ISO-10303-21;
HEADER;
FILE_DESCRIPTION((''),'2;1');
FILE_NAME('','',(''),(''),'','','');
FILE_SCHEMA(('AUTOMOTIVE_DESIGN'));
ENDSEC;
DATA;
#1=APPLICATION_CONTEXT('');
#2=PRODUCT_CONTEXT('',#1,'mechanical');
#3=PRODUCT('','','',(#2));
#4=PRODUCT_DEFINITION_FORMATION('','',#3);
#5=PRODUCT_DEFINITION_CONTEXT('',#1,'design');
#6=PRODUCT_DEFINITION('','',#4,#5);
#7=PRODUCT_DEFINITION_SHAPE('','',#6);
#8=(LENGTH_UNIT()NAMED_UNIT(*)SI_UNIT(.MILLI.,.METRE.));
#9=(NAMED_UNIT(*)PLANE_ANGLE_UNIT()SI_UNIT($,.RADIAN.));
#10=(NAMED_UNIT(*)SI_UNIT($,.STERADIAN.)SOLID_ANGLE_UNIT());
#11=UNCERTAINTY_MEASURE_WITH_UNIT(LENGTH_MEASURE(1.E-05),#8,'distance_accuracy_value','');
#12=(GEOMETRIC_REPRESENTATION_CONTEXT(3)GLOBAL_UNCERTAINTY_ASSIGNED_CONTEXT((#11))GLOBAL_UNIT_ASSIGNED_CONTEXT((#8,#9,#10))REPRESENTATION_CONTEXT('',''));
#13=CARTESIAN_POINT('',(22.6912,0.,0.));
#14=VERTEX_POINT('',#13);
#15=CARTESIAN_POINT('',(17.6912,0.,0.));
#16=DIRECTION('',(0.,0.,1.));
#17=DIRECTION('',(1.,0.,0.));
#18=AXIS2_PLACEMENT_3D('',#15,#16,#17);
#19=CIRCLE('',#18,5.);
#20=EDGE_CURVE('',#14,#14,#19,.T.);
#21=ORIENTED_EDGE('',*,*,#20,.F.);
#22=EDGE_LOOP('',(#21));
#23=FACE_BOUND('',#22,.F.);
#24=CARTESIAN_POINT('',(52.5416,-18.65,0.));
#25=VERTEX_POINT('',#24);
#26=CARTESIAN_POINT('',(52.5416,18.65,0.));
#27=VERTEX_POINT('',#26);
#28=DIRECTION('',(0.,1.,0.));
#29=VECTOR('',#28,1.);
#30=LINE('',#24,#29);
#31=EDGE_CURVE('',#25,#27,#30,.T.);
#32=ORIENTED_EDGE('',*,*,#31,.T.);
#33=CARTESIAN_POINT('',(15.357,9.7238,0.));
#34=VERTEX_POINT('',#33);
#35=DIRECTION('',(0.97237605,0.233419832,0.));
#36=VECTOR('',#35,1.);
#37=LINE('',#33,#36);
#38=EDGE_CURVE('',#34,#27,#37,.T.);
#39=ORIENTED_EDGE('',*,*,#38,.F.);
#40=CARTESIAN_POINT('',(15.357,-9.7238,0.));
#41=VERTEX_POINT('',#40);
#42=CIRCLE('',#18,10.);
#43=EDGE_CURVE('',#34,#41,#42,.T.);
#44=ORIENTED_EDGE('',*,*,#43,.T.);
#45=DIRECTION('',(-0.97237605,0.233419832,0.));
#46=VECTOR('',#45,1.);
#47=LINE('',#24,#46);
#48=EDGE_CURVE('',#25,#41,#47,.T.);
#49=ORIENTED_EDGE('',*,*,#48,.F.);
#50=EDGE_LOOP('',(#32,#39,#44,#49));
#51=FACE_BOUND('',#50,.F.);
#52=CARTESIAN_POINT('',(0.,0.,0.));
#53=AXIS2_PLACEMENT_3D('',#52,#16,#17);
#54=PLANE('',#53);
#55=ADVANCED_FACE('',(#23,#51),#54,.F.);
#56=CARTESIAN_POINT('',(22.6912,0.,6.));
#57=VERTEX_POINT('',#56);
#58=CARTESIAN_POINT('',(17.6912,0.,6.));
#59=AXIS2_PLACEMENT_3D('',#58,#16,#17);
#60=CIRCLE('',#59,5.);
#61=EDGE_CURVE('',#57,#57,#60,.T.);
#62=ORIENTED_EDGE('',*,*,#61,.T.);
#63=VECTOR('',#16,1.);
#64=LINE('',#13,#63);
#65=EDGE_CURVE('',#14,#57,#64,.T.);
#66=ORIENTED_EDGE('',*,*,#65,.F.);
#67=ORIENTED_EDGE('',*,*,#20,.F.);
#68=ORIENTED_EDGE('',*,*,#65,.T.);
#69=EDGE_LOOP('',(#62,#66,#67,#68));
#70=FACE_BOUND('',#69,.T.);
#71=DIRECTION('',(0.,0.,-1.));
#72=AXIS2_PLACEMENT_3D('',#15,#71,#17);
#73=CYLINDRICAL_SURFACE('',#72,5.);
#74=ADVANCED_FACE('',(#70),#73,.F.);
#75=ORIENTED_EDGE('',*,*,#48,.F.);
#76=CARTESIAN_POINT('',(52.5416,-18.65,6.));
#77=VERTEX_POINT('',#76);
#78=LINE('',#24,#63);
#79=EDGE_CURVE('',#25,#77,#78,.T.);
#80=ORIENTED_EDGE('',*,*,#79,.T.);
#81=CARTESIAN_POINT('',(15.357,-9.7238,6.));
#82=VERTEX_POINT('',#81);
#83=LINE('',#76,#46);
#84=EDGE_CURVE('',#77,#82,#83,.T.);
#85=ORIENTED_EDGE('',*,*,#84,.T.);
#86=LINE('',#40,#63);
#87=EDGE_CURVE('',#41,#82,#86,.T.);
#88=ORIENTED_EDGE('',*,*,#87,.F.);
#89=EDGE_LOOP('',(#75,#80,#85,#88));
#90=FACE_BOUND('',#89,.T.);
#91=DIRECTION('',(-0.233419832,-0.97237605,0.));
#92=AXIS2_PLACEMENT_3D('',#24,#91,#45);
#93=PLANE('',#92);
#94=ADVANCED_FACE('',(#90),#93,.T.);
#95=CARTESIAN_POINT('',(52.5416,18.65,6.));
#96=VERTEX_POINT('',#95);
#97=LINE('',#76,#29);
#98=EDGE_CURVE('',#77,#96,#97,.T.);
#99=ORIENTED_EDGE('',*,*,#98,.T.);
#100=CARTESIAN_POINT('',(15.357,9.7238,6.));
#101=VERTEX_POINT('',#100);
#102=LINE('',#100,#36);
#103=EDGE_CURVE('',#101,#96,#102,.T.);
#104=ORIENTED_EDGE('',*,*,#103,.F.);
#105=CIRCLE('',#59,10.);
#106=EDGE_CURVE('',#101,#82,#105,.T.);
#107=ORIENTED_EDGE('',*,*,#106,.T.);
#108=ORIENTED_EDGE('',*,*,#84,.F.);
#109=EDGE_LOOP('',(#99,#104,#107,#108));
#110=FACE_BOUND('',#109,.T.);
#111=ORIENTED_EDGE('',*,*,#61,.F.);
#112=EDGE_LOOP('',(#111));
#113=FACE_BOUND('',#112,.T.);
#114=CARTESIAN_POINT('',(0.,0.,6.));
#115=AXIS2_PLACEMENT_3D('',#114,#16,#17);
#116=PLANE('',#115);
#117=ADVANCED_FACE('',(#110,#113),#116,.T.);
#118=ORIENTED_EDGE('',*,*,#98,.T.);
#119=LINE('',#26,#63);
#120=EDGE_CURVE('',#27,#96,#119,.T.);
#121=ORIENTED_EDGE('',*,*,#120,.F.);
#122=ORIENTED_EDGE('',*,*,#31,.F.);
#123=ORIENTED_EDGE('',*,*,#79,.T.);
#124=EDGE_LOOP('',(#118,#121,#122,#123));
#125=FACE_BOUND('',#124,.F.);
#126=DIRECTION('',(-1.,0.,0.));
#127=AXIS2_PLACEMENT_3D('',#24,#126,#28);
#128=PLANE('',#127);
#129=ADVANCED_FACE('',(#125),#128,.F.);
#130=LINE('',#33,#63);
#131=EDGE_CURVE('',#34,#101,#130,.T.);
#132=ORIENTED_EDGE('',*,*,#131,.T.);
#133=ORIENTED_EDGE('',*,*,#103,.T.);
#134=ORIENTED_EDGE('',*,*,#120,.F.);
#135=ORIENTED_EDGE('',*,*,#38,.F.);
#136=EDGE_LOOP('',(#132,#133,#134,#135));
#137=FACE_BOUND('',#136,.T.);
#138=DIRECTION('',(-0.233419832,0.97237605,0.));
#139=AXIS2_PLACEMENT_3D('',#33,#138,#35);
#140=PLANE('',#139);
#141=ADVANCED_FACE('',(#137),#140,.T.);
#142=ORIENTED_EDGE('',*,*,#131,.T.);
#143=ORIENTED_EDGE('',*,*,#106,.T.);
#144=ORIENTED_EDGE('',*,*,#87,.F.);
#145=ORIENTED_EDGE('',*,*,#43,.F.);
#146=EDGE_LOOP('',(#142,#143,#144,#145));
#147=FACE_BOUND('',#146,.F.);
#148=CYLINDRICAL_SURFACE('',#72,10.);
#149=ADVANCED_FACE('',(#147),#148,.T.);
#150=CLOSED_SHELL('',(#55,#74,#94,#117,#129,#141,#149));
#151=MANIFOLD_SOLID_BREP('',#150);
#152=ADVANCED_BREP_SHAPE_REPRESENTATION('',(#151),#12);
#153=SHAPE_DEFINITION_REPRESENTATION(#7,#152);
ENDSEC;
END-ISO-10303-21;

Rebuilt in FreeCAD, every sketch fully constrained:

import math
import FreeCAD as App
import Part
import Sketcher
from FreeCAD import Vector
Q = App.Units.Quantity

doc = App.newDocument("Part")
body = doc.addObject("PartDesign::Body", "Body")

# Sketch on XY plane
sketch1 = doc.addObject("Sketcher::SketchObject", "Sketch")
body.addObject(sketch1)
sketch1.AttachmentSupport = (doc.XY_Plane, [""])
sketch1.MapMode = "FlatFace"
sketch1.addGeometry(Part.LineSegment(Vector(52.5416, -18.65, 0), Vector(52.5416, 18.65, 0)), False)
sketch1.addGeometry(Part.LineSegment(Vector(52.5416, 18.65, 0), Vector(15.357, 9.7238, 0)), False)
sketch1.addGeometry(Part.ArcOfCircle(Part.Circle(Vector(17.6912, 0, 0), Vector(0, 0, 1), 10), math.radians(103.498452), math.radians(256.501548)), False)
sketch1.addGeometry(Part.LineSegment(Vector(15.357, -9.7238, 0), Vector(52.5416, -18.65, 0)), False)
sketch1.addGeometry(Part.Circle(Vector(17.6912, 0, 0), Vector(0, 0, 1), 5), False)
sketch1.addConstraint(Sketcher.Constraint("Coincident", 0, 2, 1, 1))
sketch1.addConstraint(Sketcher.Constraint("Tangent", 1, 2, 2, 1))
sketch1.addConstraint(Sketcher.Constraint("Tangent", 2, 2, 3, 1))
sketch1.addConstraint(Sketcher.Constraint("Coincident", 3, 2, 0, 1))
sketch1.addConstraint(Sketcher.Constraint("Vertical", 0))
sketch1.addConstraint(Sketcher.Constraint("Coincident", 4, 3, 2, 3))
sketch1.addConstraint(Sketcher.Constraint("Symmetric", 1, 2, 2, 2, -1))
sketch1.addConstraint(Sketcher.Constraint("Radius", 2, Q("10 mm")))
sketch1.addConstraint(Sketcher.Constraint("Diameter", 4, Q("10 mm")))
sketch1.addConstraint(Sketcher.Constraint("DistanceY", 0, 1, 0, 2, Q("37.3 mm")))
sketch1.addConstraint(Sketcher.Constraint("Distance", 1, Q("38.241 mm")))
sketch1.addConstraint(Sketcher.Constraint("DistanceX", -1, 1, 1, 2, Q("15.357 mm")))
pad1 = doc.addObject("PartDesign::Pad", "Pad")
body.addObject(pad1)
pad1.Profile = sketch1
pad1.Length = 6

doc.recompute()
